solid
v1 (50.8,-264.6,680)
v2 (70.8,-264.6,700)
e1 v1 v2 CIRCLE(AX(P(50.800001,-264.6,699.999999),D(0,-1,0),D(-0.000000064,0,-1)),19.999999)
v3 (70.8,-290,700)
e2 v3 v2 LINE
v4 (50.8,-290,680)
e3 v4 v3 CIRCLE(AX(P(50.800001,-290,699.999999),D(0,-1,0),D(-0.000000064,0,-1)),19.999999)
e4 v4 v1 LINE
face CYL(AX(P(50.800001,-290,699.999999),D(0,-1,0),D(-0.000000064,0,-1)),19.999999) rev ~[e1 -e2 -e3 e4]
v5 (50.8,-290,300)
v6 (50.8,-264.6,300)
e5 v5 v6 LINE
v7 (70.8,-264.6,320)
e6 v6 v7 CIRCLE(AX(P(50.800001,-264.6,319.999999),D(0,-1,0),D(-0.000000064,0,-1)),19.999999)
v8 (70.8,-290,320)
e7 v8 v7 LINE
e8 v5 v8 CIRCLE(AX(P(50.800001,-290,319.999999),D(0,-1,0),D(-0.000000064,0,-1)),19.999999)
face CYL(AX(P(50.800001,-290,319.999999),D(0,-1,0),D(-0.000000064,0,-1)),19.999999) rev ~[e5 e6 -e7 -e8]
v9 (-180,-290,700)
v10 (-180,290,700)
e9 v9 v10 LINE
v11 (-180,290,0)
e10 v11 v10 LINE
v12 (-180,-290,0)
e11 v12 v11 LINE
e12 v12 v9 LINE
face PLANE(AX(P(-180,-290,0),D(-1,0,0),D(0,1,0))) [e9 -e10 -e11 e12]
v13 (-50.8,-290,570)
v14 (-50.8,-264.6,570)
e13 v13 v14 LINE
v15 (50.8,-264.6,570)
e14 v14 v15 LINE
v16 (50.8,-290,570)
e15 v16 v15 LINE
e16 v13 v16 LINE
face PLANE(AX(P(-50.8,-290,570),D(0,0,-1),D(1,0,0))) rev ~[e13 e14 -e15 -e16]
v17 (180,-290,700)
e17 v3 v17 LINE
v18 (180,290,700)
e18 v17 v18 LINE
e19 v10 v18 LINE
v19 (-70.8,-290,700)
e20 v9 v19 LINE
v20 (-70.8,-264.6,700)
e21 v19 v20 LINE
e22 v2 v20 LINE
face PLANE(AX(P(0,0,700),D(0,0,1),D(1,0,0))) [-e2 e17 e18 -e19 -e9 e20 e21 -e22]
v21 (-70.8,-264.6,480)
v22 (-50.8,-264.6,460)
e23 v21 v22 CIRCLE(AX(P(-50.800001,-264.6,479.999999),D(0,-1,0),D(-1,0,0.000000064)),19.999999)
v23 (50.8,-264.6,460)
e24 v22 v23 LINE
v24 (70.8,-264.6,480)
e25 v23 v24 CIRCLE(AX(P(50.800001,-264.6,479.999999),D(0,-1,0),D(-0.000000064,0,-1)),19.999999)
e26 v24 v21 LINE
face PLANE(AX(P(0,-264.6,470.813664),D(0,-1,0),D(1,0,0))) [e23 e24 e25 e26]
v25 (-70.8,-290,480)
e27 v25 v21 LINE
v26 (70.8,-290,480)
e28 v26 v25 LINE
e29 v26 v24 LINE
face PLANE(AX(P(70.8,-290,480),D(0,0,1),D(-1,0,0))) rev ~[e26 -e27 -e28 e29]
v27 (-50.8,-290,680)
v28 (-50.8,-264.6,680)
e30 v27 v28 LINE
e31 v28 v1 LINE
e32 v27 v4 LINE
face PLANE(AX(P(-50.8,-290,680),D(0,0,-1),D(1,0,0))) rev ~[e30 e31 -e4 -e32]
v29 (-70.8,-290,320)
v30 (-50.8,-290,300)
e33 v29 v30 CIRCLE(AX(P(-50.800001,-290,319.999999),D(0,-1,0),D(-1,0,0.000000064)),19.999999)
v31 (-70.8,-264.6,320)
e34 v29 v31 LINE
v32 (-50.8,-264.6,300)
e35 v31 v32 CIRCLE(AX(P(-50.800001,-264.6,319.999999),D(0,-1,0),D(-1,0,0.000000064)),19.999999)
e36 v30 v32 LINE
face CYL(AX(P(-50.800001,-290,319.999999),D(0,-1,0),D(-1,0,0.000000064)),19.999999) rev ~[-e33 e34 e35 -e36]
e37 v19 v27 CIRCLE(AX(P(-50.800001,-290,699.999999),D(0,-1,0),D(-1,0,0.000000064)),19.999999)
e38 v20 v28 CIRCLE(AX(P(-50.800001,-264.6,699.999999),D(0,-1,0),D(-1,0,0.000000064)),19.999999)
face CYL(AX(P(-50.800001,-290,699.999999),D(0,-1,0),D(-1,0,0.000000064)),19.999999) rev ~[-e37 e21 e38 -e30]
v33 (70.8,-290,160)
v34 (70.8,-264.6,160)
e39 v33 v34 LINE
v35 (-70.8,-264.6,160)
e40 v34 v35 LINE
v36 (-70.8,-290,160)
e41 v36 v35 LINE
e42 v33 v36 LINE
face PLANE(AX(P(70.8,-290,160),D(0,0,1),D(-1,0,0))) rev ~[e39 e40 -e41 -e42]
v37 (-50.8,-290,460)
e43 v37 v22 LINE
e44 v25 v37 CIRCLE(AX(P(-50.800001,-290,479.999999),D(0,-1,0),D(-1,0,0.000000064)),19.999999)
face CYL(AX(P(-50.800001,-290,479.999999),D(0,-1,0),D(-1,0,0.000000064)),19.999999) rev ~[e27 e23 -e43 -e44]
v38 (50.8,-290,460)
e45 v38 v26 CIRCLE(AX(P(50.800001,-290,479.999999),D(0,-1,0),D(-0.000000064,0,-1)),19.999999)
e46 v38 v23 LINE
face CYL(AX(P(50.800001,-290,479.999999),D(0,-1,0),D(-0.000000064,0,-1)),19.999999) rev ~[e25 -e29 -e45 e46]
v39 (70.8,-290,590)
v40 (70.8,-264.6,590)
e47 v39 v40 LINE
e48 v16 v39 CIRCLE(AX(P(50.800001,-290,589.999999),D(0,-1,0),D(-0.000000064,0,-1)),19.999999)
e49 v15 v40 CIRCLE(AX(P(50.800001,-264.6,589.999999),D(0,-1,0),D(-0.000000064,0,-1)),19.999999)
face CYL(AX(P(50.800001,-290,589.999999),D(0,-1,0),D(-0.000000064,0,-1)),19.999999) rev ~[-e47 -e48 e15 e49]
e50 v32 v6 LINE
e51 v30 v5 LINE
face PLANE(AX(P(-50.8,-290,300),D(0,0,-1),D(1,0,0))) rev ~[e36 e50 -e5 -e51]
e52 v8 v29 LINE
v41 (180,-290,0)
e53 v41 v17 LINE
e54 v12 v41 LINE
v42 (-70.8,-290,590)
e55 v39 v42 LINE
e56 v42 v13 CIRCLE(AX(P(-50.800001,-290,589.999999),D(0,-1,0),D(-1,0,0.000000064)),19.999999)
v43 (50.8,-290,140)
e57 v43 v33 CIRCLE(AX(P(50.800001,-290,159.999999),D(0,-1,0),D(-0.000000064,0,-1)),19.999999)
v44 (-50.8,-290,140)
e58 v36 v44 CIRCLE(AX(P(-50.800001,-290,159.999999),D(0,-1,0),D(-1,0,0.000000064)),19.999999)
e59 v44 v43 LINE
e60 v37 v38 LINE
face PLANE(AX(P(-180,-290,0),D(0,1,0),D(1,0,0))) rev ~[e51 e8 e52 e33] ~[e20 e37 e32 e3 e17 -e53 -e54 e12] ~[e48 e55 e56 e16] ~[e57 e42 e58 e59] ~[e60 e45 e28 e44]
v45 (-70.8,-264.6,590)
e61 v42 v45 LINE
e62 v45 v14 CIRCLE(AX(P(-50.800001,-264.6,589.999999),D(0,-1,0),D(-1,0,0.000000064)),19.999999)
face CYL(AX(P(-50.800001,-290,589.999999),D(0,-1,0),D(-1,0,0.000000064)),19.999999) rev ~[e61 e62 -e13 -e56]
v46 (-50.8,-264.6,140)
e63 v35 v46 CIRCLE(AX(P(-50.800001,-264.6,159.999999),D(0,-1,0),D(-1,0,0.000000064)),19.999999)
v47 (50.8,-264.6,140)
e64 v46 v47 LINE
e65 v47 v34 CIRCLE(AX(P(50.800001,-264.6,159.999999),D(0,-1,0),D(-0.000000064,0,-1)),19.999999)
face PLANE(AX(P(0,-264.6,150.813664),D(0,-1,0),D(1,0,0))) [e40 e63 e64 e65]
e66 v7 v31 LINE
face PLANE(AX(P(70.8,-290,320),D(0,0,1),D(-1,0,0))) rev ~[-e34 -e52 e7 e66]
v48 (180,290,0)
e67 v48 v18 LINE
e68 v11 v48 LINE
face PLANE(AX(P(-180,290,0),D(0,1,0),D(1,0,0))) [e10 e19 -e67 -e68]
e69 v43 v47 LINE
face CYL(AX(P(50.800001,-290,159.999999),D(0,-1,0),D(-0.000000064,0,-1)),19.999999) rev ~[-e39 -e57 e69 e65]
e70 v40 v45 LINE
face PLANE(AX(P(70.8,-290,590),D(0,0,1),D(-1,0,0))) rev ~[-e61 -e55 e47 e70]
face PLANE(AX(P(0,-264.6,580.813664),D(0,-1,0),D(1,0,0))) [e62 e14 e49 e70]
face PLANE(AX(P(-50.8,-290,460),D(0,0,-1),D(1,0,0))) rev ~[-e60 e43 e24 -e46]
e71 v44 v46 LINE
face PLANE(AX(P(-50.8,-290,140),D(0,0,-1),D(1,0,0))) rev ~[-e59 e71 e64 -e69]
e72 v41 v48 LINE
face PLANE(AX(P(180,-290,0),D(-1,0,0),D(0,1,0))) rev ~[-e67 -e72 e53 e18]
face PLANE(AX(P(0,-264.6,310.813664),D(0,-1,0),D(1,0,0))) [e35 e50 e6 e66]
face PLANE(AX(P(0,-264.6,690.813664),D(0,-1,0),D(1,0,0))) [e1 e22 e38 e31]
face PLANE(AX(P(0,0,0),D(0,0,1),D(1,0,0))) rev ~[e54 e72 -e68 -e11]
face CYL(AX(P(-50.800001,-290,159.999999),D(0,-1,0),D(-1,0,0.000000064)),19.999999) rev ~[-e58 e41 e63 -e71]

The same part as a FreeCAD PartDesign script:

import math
import FreeCAD as App
import Part
import Sketcher

V = App.Vector
Q = App.Units.Quantity

doc = App.newDocument("Part")
body = doc.addObject("PartDesign::Body", "Body")

# Sketch on XY plane
sketch1 = body.newObject("Sketcher::SketchObject", "Sketch")
sketch1.AttachmentSupport = (doc.getObject("XY_Plane"), [""])
sketch1.MapMode = "FlatFace"
sketch1.addGeometry([
    Part.LineSegment(V(-180, 290, 0), V(-180, -290, 0)),
    Part.LineSegment(V(-180, -290, 0), V(180, -290, 0)),
    Part.LineSegment(V(180, -290, 0), V(180, 290, 0)),
    Part.LineSegment(V(180, 290, 0), V(-180, 290, 0)),
], False)
sketch1.addConstraint([
    Sketcher.Constraint("Coincident", 0, 2, 1, 1),
    Sketcher.Constraint("Coincident", 1, 2, 2, 1),
    Sketcher.Constraint("Coincident", 2, 2, 3, 1),
    Sketcher.Constraint("Coincident", 3, 2, 0, 1),
    Sketcher.Constraint("Vertical", 0),
    Sketcher.Constraint("Horizontal", 1),
    Sketcher.Constraint("Vertical", 2),
    Sketcher.Constraint("Horizontal", 3),
    Sketcher.Constraint("Symmetric", 0, 2, 2, 2, -1, 1),
    Sketcher.Constraint("DistanceX", 1, 1, 1, 2, Q("360 mm")),
    Sketcher.Constraint("DistanceY", 0, 2, 0, 1, Q("580 mm")),
])
pad1 = body.newObject("PartDesign::Pad", "Pad")
pad1.Profile = sketch1
pad1.Length = 700

# Sketch on XZ plane
sketch2 = body.newObject("Sketcher::SketchObject", "Sketch001")
sketch2.AttachmentSupport = (doc.getObject("XZ_Plane"), [""])
sketch2.MapMode = "FlatFace"
sketch2.AttachmentOffset = App.Placement(V(0, 0, 290), App.Rotation())
sketch2.addGeometry([
    Part.ArcOfCircle(Part.Circle(V(51, 700, 0), V(0, 0, 1), 20), math.radians(-90), math.radians(0)),  # 0
    Part.LineSegment(V(71, 700, 0), V(-71, 700, 0)),  # 1
    Part.ArcOfCircle(Part.Circle(V(-51, 700, 0), V(0, 0, 1), 20), math.radians(180), math.radians(270)),  # 2
    Part.LineSegment(V(-51, 680, 0), V(51, 680, 0)),  # 3
    Part.ArcOfCircle(Part.Circle(V(51, 590, 0), V(0, 0, 1), 20), math.radians(-90), math.radians(0)),  # 4
    Part.LineSegment(V(71, 590, 0), V(-71, 590, 0)),  # 5
    Part.ArcOfCircle(Part.Circle(V(-51, 590, 0), V(0, 0, 1), 20), math.radians(180), math.radians(270)),  # 6
    Part.LineSegment(V(-51, 570, 0), V(51, 570, 0)),  # 7
    Part.ArcOfCircle(Part.Circle(V(51, 480, 0), V(0, 0, 1), 20), math.radians(-90), math.radians(0)),  # 8
    Part.LineSegment(V(71, 480, 0), V(-71, 480, 0)),  # 9
    Part.ArcOfCircle(Part.Circle(V(-51, 480, 0), V(0, 0, 1), 20), math.radians(180), math.radians(270)),  # 10
    Part.LineSegment(V(-51, 460, 0), V(51, 460, 0)),  # 11
    Part.ArcOfCircle(Part.Circle(V(51, 320, 0), V(0, 0, 1), 20), math.radians(-90), math.radians(0)),  # 12
    Part.LineSegment(V(71, 320, 0), V(-71, 320, 0)),  # 13
    Part.ArcOfCircle(Part.Circle(V(-51, 320, 0), V(0, 0, 1), 20), math.radians(180), math.radians(270)),  # 14
    Part.LineSegment(V(-51, 300, 0), V(51, 300, 0)),  # 15
    Part.LineSegment(V(71, 160, 0), V(-71, 160, 0)),  # 16
    Part.ArcOfCircle(Part.Circle(V(-51, 160, 0), V(0, 0, 1), 20), math.radians(180), math.radians(270)),  # 17
    Part.LineSegment(V(-51, 140, 0), V(51, 140, 0)),  # 18
    Part.ArcOfCircle(Part.Circle(V(51, 160, 0), V(0, 0, 1), 20), math.radians(-90), math.radians(0)),  # 19
], False)
sketch2.addConstraint([
    Sketcher.Constraint("Coincident", 0, 2, 1, 1),
    Sketcher.Constraint("Coincident", 1, 2, 2, 1),
    Sketcher.Constraint("Tangent", 2, 2, 3, 1),
    Sketcher.Constraint("Tangent", 3, 2, 0, 1),
    Sketcher.Constraint("Coincident", 4, 2, 5, 1),
    Sketcher.Constraint("Coincident", 5, 2, 6, 1),
    Sketcher.Constraint("Tangent", 6, 2, 7, 1),
    Sketcher.Constraint("Tangent", 7, 2, 4, 1),
    Sketcher.Constraint("Coincident", 8, 2, 9, 1),
    Sketcher.Constraint("Coincident", 9, 2, 10, 1),
    Sketcher.Constraint("Tangent", 10, 2, 11, 1),
    Sketcher.Constraint("Tangent", 11, 2, 8, 1),
    Sketcher.Constraint("Coincident", 12, 2, 13, 1),
    Sketcher.Constraint("Coincident", 13, 2, 14, 1),
    Sketcher.Constraint("Tangent", 14, 2, 15, 1),
    Sketcher.Constraint("Tangent", 15, 2, 12, 1),
    Sketcher.Constraint("Coincident", 16, 2, 17, 1),
    Sketcher.Constraint("Tangent", 17, 2, 18, 1),
    Sketcher.Constraint("Tangent", 18, 2, 19, 1),
    Sketcher.Constraint("Coincident", 19, 2, 16, 1),
    Sketcher.Constraint("Horizontal", 1),
    Sketcher.Constraint("Horizontal", 3),
    Sketcher.Constraint("Horizontal", 5),
    Sketcher.Constraint("Horizontal", 7),
    Sketcher.Constraint("Horizontal", 9),
    Sketcher.Constraint("Horizontal", 11),
    Sketcher.Constraint("Horizontal", 13),
    Sketcher.Constraint("Horizontal", 15),
    Sketcher.Constraint("Horizontal", 16),
    Sketcher.Constraint("Horizontal", 18),
    Sketcher.Constraint("Equal", 0, 2),
    Sketcher.Constraint("Equal", 2, 4),
    Sketcher.Constraint("Equal", 4, 6),
    Sketcher.Constraint("Equal", 6, 8),
    Sketcher.Constraint("Equal", 8, 10),
    Sketcher.Constraint("Equal", 10, 12),
    Sketcher.Constraint("Equal", 12, 14),
    Sketcher.Constraint("Equal", 14, 17),
    Sketcher.Constraint("Equal", 17, 19),
    Sketcher.Constraint("Horizontal", 2, 3, 0, 2),
    Sketcher.Constraint("Horizontal", 6, 3, 4, 2),
    Sketcher.Constraint("Horizontal", 10, 3, 8, 2),
    Sketcher.Constraint("Horizontal", 14, 3, 12, 2),
    Sketcher.Constraint("Horizontal", 19, 3, 16, 2),
    Sketcher.Constraint("Vertical", 0, 3, 4, 3),
    Sketcher.Constraint("Vertical", 2, 3, 6, 3),
    Sketcher.Constraint("Vertical", 4, 3, 8, 3),
    Sketcher.Constraint("Vertical", 6, 3, 10, 3),
    Sketcher.Constraint("Vertical", 8, 3, 12, 3),
    Sketcher.Constraint("Vertical", 10, 3, 14, 3),
    Sketcher.Constraint("Vertical", 14, 3, 17, 3),
    Sketcher.Constraint("Vertical", 12, 3, 19, 3),
    Sketcher.Constraint("Radius", 0, Q("19.999999 mm")),
    Sketcher.Constraint("DistanceX", 1, 2, 1, 1, Q("141.6 mm")),
    Sketcher.Constraint("DistanceY", -1, 1, 0, 3, Q("699.999999 mm")),
    Sketcher.Constraint("DistanceY", -1, 1, 4, 3, Q("589.999999 mm")),
    Sketcher.Constraint("DistanceY", -1, 1, 8, 3, Q("479.999999 mm")),
    Sketcher.Constraint("DistanceY", -1, 1, 12, 3, Q("319.999999 mm")),
    Sketcher.Constraint("DistanceY", -1, 1, 17, 3, Q("159.999999 mm")),
    Sketcher.Constraint("DistanceX", -1, 1, 0, 3, Q("50.800001 mm")),
])
pocket1 = body.newObject("PartDesign::Pocket", "Pocket")
pocket1.Profile = sketch2
pocket1.Length = 25.4

doc.recompute()
